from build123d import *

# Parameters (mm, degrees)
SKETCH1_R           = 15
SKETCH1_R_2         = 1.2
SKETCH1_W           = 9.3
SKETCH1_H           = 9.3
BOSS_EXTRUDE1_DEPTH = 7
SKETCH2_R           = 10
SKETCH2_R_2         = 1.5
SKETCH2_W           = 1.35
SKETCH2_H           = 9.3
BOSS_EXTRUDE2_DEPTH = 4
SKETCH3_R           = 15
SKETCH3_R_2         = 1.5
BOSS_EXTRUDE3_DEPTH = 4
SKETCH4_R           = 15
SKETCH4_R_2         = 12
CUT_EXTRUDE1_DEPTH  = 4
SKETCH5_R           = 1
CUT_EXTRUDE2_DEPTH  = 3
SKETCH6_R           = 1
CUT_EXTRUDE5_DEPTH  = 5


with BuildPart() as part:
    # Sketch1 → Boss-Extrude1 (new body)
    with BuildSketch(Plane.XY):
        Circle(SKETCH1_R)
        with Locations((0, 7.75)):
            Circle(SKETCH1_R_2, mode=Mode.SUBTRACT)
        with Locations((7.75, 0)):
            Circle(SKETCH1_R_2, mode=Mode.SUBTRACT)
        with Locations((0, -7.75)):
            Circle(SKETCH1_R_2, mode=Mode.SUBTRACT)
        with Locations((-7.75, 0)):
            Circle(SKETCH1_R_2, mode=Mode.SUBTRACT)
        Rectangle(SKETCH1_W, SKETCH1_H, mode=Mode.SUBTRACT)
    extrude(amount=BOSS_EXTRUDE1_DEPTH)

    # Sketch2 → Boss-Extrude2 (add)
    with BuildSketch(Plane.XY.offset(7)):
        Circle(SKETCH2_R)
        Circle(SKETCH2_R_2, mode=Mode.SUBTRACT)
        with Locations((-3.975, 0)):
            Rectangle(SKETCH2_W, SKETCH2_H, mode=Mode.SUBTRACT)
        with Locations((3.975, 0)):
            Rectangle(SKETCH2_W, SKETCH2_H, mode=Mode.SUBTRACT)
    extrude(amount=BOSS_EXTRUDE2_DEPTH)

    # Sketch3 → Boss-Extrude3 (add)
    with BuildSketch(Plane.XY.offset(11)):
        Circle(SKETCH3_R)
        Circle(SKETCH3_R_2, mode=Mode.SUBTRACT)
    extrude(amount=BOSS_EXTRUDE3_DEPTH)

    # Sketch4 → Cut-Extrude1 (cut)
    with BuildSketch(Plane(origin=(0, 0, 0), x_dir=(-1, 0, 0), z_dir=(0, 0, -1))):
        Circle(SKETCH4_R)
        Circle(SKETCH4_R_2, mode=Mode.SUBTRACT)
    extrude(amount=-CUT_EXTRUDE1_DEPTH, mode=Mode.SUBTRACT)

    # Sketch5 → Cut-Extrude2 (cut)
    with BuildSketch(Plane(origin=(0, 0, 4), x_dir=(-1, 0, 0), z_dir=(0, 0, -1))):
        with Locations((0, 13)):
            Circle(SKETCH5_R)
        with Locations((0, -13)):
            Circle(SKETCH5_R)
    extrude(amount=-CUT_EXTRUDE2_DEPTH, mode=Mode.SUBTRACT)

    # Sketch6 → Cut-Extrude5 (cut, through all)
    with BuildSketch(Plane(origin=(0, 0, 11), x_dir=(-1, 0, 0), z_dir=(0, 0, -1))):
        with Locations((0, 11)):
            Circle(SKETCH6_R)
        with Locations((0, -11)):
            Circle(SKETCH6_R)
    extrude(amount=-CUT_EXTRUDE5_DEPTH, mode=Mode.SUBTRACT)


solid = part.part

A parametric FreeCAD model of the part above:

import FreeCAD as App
import Part
import Sketcher

V = App.Vector

doc = App.newDocument("Part")
body = doc.addObject("PartDesign::Body", "Body")

sketch1 = body.newObject("Sketcher::SketchObject", "Sketch")
sketch1.AttachmentSupport = (doc.getObject("XY_Plane"), [""])
sketch1.MapMode = "FlatFace"
sketch1.addGeometry(Part.Circle(V(0, 0, 0), V(0, 0, 1), 15), False)
sketch1.addGeometry(Part.Circle(V(0, -7.8, 0), V(0, 0, 1), 1.2), False)
sketch1.addGeometry(Part.Circle(V(-7.8, 0, 0), V(0, 0, 1), 1.2), False)
sketch1.addGeometry(Part.LineSegment(V(4.7, -4.7, 0), V(-4.7, -4.7, 0)), False)
sketch1.addGeometry(Part.LineSegment(V(-4.7, -4.7, 0), V(-4.7, 4.7, 0)), False)
sketch1.addGeometry(Part.LineSegment(V(-4.7, 4.7, 0), V(4.7, 4.7, 0)), False)
sketch1.addGeometry(Part.LineSegment(V(4.7, 4.7, 0), V(4.7, -4.7, 0)), False)
sketch1.addGeometry(Part.Circle(V(7.8, 0, 0), V(0, 0, 1), 1.2), False)
sketch1.addGeometry(Part.Circle(V(0, 7.8, 0), V(0, 0, 1), 1.2), False)
sketch1.addConstraint(Sketcher.Constraint("Coincident", 3, 2, 4, 1))
sketch1.addConstraint(Sketcher.Constraint("Coincident", 4, 2, 5, 1))
sketch1.addConstraint(Sketcher.Constraint("Coincident", 5, 2, 6, 1))
sketch1.addConstraint(Sketcher.Constraint("Coincident", 6, 2, 3, 1))
sketch1.addConstraint(Sketcher.Constraint("Horizontal", 3))
sketch1.addConstraint(Sketcher.Constraint("Vertical", 4))
sketch1.addConstraint(Sketcher.Constraint("Horizontal", 5))
sketch1.addConstraint(Sketcher.Constraint("Vertical", 6))
sketch1.addConstraint(Sketcher.Constraint("Coincident", 0, 3, -1, 1))
sketch1.addConstraint(Sketcher.Constraint("Equal", 1, 2))
sketch1.addConstraint(Sketcher.Constraint("Equal", 2, 7))
sketch1.addConstraint(Sketcher.Constraint("Equal", 7, 8))
sketch1.addConstraint(Sketcher.Constraint("Symmetric", 2, 3, 7, 3, -1, 1))
sketch1.addConstraint(Sketcher.Constraint("Symmetric", 1, 3, 8, 3, -1, 1))
sketch1.addConstraint(Sketcher.Constraint("Symmetric", 3, 2, 5, 2, -1, 1))
sketch1.addConstraint(Sketcher.Constraint("PointOnObject", 1, 3, -2))
sketch1.addConstraint(Sketcher.Constraint("PointOnObject", 2, 3, -1))
sketch1.addConstraint(Sketcher.Constraint("Equal", 5, 4))
sketch1.addConstraint(Sketcher.Constraint("Diameter", 0, 30.0))
sketch1.addConstraint(Sketcher.Constraint("Diameter", 1, 2.4))
sketch1.addConstraint(Sketcher.Constraint("DistanceX", 3, 2, 3, 1, 9.3))
sketch1.addConstraint(Sketcher.Constraint("DistanceX", 2, 3, 7, 3, 15.5))
sketch1.addConstraint(Sketcher.Constraint("DistanceY", 1, 3, 8, 3, 15.5))
pad1 = body.newObject("PartDesign::Pad", "Pad")
pad1.Profile = sketch1
pad1.Length = 7

sketch2 = body.newObject("Sketcher::SketchObject", "Sketch001")
sketch2.AttachmentSupport = (doc.getObject("XY_Plane"), [""])
sketch2.MapMode = "FlatFace"
sketch2.AttachmentOffset = App.Placement(V(0, 0, 7), App.Rotation())
sketch2.addGeometry(Part.Circle(V(0, 0, 0), V(0, 0, 1), 10), False)
sketch2.addGeometry(Part.LineSegment(V(-3.3, -4.7, 0), V(-4.7, -4.7, 0)), False)
sketch2.addGeometry(Part.LineSegment(V(-4.7, -4.7, 0), V(-4.7, 4.7, 0)), False)
sketch2.addGeometry(Part.LineSegment(V(-4.7, 4.7, 0), V(-3.3, 4.7, 0)), False)
sketch2.addGeometry(Part.LineSegment(V(-3.3, 4.7, 0), V(-3.3, -4.7, 0)), False)
sketch2.addGeometry(Part.Circle(V(0, 0, 0), V(0, 0, 1), 1.5), False)
sketch2.addGeometry(Part.LineSegment(V(4.7, -4.7, 0), V(3.3, -4.7, 0)), False)
sketch2.addGeometry(Part.LineSegment(V(3.3, -4.7, 0), V(3.3, 4.7, 0)), False)
sketch2.addGeometry(Part.LineSegment(V(3.3, 4.7, 0), V(4.7, 4.7, 0)), False)
sketch2.addGeometry(Part.LineSegment(V(4.7, 4.7, 0), V(4.7, -4.7, 0)), False)
sketch2.addConstraint(Sketcher.Constraint("Coincident", 1, 2, 2, 1))
sketch2.addConstraint(Sketcher.Constraint("Coincident", 2, 2, 3, 1))
sketch2.addConstraint(Sketcher.Constraint("Coincident", 3, 2, 4, 1))
sketch2.addConstraint(Sketcher.Constraint("Coincident", 4, 2, 1, 1))
sketch2.addConstraint(Sketcher.Constraint("Coincident", 6, 2, 7, 1))
sketch2.addConstraint(Sketcher.Constraint("Coincident", 7, 2, 8, 1))
sketch2.addConstraint(Sketcher.Constraint("Coincident", 8, 2, 9, 1))
sketch2.addConstraint(Sketcher.Constraint("Coincident", 9, 2, 6, 1))
sketch2.addConstraint(Sketcher.Constraint("Horizontal", 1))
sketch2.addConstraint(Sketcher.Constraint("Vertical", 2))
sketch2.addConstraint(Sketcher.Constraint("Horizontal", 3))
sketch2.addConstraint(Sketcher.Constraint("Vertical", 4))
sketch2.addConstraint(Sketcher.Constraint("Horizontal", 6))
sketch2.addConstraint(Sketcher.Constraint("Vertical", 7))
sketch2.addConstraint(Sketcher.Constraint("Horizontal", 8))
sketch2.addConstraint(Sketcher.Constraint("Vertical", 9))
sketch2.addConstraint(Sketcher.Constraint("Coincident", 0, 3, -1, 1))
sketch2.addConstraint(Sketcher.Constraint("Coincident", 5, 3, -1, 1))
sketch2.addConstraint(Sketcher.Constraint("Symmetric", 3, 2, 6, 2, -1, 1))
sketch2.addConstraint(Sketcher.Constraint("Symmetric", 1, 2, 8, 2, -1, 1))
sketch2.addConstraint(Sketcher.Constraint("Horizontal", 4, 2, 6, 2))
sketch2.addConstraint(Sketcher.Constraint("Diameter", 0, 20.0))
sketch2.addConstraint(Sketcher.Constraint("Diameter", 5, 3.0))
sketch2.addConstraint(Sketcher.Constraint("DistanceY", 2, 1, 2, 2, 9.3))
sketch2.addConstraint(Sketcher.Constraint("DistanceX", 1, 2, 1, 1, 1.35))
sketch2.addConstraint(Sketcher.Constraint("DistanceX", 3, 2, -1, 1, 3.3))
pad2 = body.newObject("PartDesign::Pad", "Pad001")
pad2.Profile = sketch2
pad2.Length = 4

sketch3 = body.newObject("Sketcher::SketchObject", "Sketch002")
sketch3.AttachmentSupport = (doc.getObject("XY_Plane"), [""])
sketch3.MapMode = "FlatFace"
sketch3.AttachmentOffset = App.Placement(V(0, 0, 11), App.Rotation())
sketch3.addGeometry(Part.Circle(V(0, 0, 0), V(0, 0, 1), 15), False)
sketch3.addGeometry(Part.Circle(V(0, 0, 0), V(0, 0, 1), 1.5), False)
sketch3.addConstraint(Sketcher.Constraint("Coincident", 0, 3, -1, 1))
sketch3.addConstraint(Sketcher.Constraint("Coincident", 1, 3, -1, 1))
sketch3.addConstraint(Sketcher.Constraint("Diameter", 0, 30.0))
sketch3.addConstraint(Sketcher.Constraint("Diameter", 1, 3.0))
pad3 = body.newObject("PartDesign::Pad", "Pad002")
pad3.Profile = sketch3
pad3.Length = 4

sketch4 = body.newObject("Sketcher::SketchObject", "Sketch003")
sketch4.AttachmentSupport = (doc.getObject("XY_Plane"), [""])
sketch4.MapMode = "FlatFace"
sketch4.addGeometry(Part.Circle(V(0, 0, 0), V(0, 0, 1), 15), False)
sketch4.addGeometry(Part.Circle(V(0, 0, 0), V(0, 0, 1), 12), False)
sketch4.addConstraint(Sketcher.Constraint("Coincident", 0, 3, -1, 1))
sketch4.addConstraint(Sketcher.Constraint("Coincident", 1, 3, -1, 1))
sketch4.addConstraint(Sketcher.Constraint("Diameter", 0, 30.0))
sketch4.addConstraint(Sketcher.Constraint("Diameter", 1, 24.0))
pocket1 = body.newObject("PartDesign::Pocket", "Pocket")
pocket1.Profile = sketch4
pocket1.Length = 4
pocket1.Reversed = True

sketch5 = body.newObject("Sketcher::SketchObject", "Sketch004")
sketch5.AttachmentSupport = (doc.getObject("XY_Plane"), [""])
sketch5.MapMode = "FlatFace"
sketch5.AttachmentOffset = App.Placement(V(0, 0, 4), App.Rotation())
sketch5.addGeometry(Part.Circle(V(0, 13, 0), V(0, 0, 1), 1), False)
sketch5.addGeometry(Part.Circle(V(0, -13, 0), V(0, 0, 1), 1), False)
sketch5.addConstraint(Sketcher.Constraint("Equal", 0, 1))
sketch5.addConstraint(Sketcher.Constraint("Symmetric", 0, 3, 1, 3, -1, 1))
sketch5.addConstraint(Sketcher.Constraint("PointOnObject", 0, 3, -2))
sketch5.addConstraint(Sketcher.Constraint("Diameter", 0, 2.0))
sketch5.addConstraint(Sketcher.Constraint("DistanceY", -1, 1, 0, 3, 13.0))
pocket2 = body.newObject("PartDesign::Pocket", "Pocket001")
pocket2.Profile = sketch5
pocket2.Length = 3
pocket2.Reversed = True

sketch6 = body.newObject("Sketcher::SketchObject", "Sketch005")
sketch6.AttachmentSupport = (doc.getObject("XY_Plane"), [""])
sketch6.MapMode = "FlatFace"
sketch6.AttachmentOffset = App.Placement(V(0, 0, 11), App.Rotation())
sketch6.addGeometry(Part.Circle(V(0, 11, 0), V(0, 0, 1), 1), False)
sketch6.addGeometry(Part.Circle(V(0, -11, 0), V(0, 0, 1), 1), False)
sketch6.addConstraint(Sketcher.Constraint("Equal", 0, 1))
sketch6.addConstraint(Sketcher.Constraint("Symmetric", 0, 3, 1, 3, -1, 1))
sketch6.addConstraint(Sketcher.Constraint("PointOnObject", 0, 3, -2))
sketch6.addConstraint(Sketcher.Constraint("Diameter", 0, 2.0))
sketch6.addConstraint(Sketcher.Constraint("DistanceY", -1, 1, 0, 3, 11.0))
pocket3 = body.newObject("PartDesign::Pocket", "Pocket002")
pocket3.Profile = sketch6
pocket3.Type = "ThroughAll"
pocket3.Reversed = True

doc.recompute()
